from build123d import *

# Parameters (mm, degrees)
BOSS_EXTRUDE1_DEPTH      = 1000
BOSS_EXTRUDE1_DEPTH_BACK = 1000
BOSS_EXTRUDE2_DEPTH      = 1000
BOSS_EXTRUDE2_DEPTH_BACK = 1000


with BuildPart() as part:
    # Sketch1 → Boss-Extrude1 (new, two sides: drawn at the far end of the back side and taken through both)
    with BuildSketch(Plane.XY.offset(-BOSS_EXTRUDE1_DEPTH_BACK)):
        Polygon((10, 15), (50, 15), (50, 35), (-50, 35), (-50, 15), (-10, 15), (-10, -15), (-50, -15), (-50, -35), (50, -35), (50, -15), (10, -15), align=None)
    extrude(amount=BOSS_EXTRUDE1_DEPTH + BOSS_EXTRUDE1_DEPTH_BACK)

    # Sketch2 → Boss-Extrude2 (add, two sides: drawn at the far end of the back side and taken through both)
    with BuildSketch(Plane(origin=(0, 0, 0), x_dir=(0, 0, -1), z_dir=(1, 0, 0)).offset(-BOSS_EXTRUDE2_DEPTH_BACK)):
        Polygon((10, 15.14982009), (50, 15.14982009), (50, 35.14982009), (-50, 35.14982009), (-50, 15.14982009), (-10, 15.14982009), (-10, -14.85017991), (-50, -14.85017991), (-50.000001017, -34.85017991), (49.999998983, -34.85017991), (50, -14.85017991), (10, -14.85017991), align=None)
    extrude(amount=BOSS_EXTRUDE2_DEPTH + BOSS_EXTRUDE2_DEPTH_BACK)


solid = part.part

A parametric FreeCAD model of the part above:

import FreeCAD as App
import Part
import Sketcher

V = App.Vector
Q = App.Units.Quantity

doc = App.newDocument("Part")
body = doc.addObject("PartDesign::Body", "Body")

sketch1 = doc.addObject("Sketcher::SketchObject", "Sketch")
body.addObject(sketch1)
sketch1.AttachmentSupport = (doc.XY_Plane, [""])
sketch1.MapMode = "FlatFace"
sketch1.addGeometry([
    Part.LineSegment(V(10, 15, 0), V(50, 15, 0)),
    Part.LineSegment(V(50, 15, 0), V(50, 35, 0)),
    Part.LineSegment(V(50, 35, 0), V(-50, 35, 0)),
    Part.LineSegment(V(-50, 35, 0), V(-50, 15, 0)),
    Part.LineSegment(V(-50, 15, 0), V(-10, 15, 0)),
    Part.LineSegment(V(-10, 15, 0), V(-10, -15, 0)),
    Part.LineSegment(V(-10, -15, 0), V(-50, -15, 0)),
    Part.LineSegment(V(-50, -15, 0), V(-50, -35, 0)),
    Part.LineSegment(V(-50, -35, 0), V(50, -35, 0)),
    Part.LineSegment(V(50, -35, 0), V(50, -15, 0)),
    Part.LineSegment(V(50, -15, 0), V(10, -15, 0)),
    Part.LineSegment(V(10, -15, 0), V(10, 15, 0)),
], False)
sketch1.addConstraint([
    Sketcher.Constraint("Coincident", 0, 2, 1, 1),
    Sketcher.Constraint("Coincident", 1, 2, 2, 1),
    Sketcher.Constraint("Coincident", 2, 2, 3, 1),
    Sketcher.Constraint("Coincident", 3, 2, 4, 1),
    Sketcher.Constraint("Coincident", 4, 2, 5, 1),
    Sketcher.Constraint("Coincident", 5, 2, 6, 1),
    Sketcher.Constraint("Coincident", 6, 2, 7, 1),
    Sketcher.Constraint("Coincident", 7, 2, 8, 1),
    Sketcher.Constraint("Coincident", 8, 2, 9, 1),
    Sketcher.Constraint("Coincident", 9, 2, 10, 1),
    Sketcher.Constraint("Coincident", 10, 2, 11, 1),
    Sketcher.Constraint("Coincident", 11, 2, 0, 1),
    Sketcher.Constraint("Horizontal", 0),
    Sketcher.Constraint("Vertical", 1),
    Sketcher.Constraint("Horizontal", 2),
    Sketcher.Constraint("Vertical", 3),
    Sketcher.Constraint("Horizontal", 4),
    Sketcher.Constraint("Vertical", 5),
    Sketcher.Constraint("Horizontal", 6),
    Sketcher.Constraint("Vertical", 7),
    Sketcher.Constraint("Horizontal", 8),
    Sketcher.Constraint("Vertical", 9),
    Sketcher.Constraint("Horizontal", 10),
    Sketcher.Constraint("Vertical", 11),
    Sketcher.Constraint("Symmetric", 0, 2, 6, 2, -1, 1),
    Sketcher.Constraint("Symmetric", 2, 2, 8, 2, -1, 1),
    Sketcher.Constraint("Symmetric", 4, 2, 10, 2, -1, 1),
    Sketcher.Constraint("Symmetric", 0, 2, 3, 2, -2),
    Sketcher.Constraint("DistanceX", 0, 1, 0, 2, Q("40 mm")),
    Sketcher.Constraint("DistanceX", 2, 2, 2, 1, Q("100 mm")),
    Sketcher.Constraint("DistanceY", 1, 1, 1, 2, Q("20 mm")),
    Sketcher.Constraint("DistanceY", 5, 2, 5, 1, Q("30 mm")),
])
pad1 = doc.addObject("PartDesign::Pad", "Pad")
body.addObject(pad1)
pad1.Profile = sketch1
pad1.Type = "TwoLengths"
pad1.Length = 1000
pad1.Length2 = 1000

sketch2 = doc.addObject("Sketcher::SketchObject", "Sketch001")
body.addObject(sketch2)
sketch2.AttachmentSupport = (doc.YZ_Plane, [""])
sketch2.MapMode = "FlatFace"
sketch2.addGeometry([
    Part.LineSegment(V(15, -10, 0), V(15, -50, 0)),
    Part.LineSegment(V(15, -50, 0), V(35, -50, 0)),
    Part.LineSegment(V(35, -50, 0), V(35, 50, 0)),
    Part.LineSegment(V(35, 50, 0), V(15, 50, 0)),
    Part.LineSegment(V(15, 50, 0), V(15, 10, 0)),
    Part.LineSegment(V(15, 10, 0), V(-15, 10, 0)),
    Part.LineSegment(V(-15, 10, 0), V(-15, 50, 0)),
    Part.LineSegment(V(-15, 50, 0), V(-35, 50, 0)),
    Part.LineSegment(V(-35, 50, 0), V(-35, -50, 0)),
    Part.LineSegment(V(-35, -50, 0), V(-15, -50, 0)),
    Part.LineSegment(V(-15, -50, 0), V(-15, -10, 0)),
    Part.LineSegment(V(-15, -10, 0), V(15, -10, 0)),
], False)
sketch2.addConstraint([
    Sketcher.Constraint("Coincident", 0, 2, 1, 1),
    Sketcher.Constraint("Coincident", 1, 2, 2, 1),
    Sketcher.Constraint("Coincident", 2, 2, 3, 1),
    Sketcher.Constraint("Coincident", 3, 2, 4, 1),
    Sketcher.Constraint("Coincident", 4, 2, 5, 1),
    Sketcher.Constraint("Coincident", 5, 2, 6, 1),
    Sketcher.Constraint("Coincident", 6, 2, 7, 1),
    Sketcher.Constraint("Coincident", 7, 2, 8, 1),
    Sketcher.Constraint("Coincident", 8, 2, 9, 1),
    Sketcher.Constraint("Coincident", 9, 2, 10, 1),
    Sketcher.Constraint("Coincident", 10, 2, 11, 1),
    Sketcher.Constraint("Coincident", 11, 2, 0, 1),
    Sketcher.Constraint("Vertical", 0),
    Sketcher.Constraint("Horizontal", 1),
    Sketcher.Constraint("Vertical", 2),
    Sketcher.Constraint("Horizontal", 3),
    Sketcher.Constraint("Vertical", 4),
    Sketcher.Constraint("Horizontal", 5),
    Sketcher.Constraint("Vertical", 6),
    Sketcher.Constraint("Horizontal", 7),
    Sketcher.Constraint("Vertical", 8),
    Sketcher.Constraint("Horizontal", 9),
    Sketcher.Constraint("Vertical", 10),
    Sketcher.Constraint("Horizontal", 11),
    Sketcher.Constraint("Symmetric", 0, 2, 3, 2, -1),
    Sketcher.Constraint("Symmetric", 6, 2, 9, 2, -1),
    Sketcher.Constraint("Horizontal", 3, 2, 6, 2),
    Sketcher.Constraint("Equal", 3, 7),
    Sketcher.Constraint("Equal", 0, 4),
    Sketcher.Constraint("DistanceX", 1, 1, 1, 2, Q("20 mm")),
    Sketcher.Constraint("DistanceX", 5, 2, 5, 1, Q("30 mm")),
    Sketcher.Constraint("DistanceY", 0, 2, 0, 1, Q("40 mm")),
    Sketcher.Constraint("DistanceY", 2, 1, 2, 2, Q("100 mm")),
    Sketcher.Constraint("DistanceX", -1, 1, 0, 2, Q("15.14982 mm")),
])
pad2 = doc.addObject("PartDesign::Pad", "Pad001")
body.addObject(pad2)
pad2.Profile = sketch2
pad2.Type = "TwoLengths"
pad2.Length = 1000
pad2.Length2 = 1000

doc.recompute()
